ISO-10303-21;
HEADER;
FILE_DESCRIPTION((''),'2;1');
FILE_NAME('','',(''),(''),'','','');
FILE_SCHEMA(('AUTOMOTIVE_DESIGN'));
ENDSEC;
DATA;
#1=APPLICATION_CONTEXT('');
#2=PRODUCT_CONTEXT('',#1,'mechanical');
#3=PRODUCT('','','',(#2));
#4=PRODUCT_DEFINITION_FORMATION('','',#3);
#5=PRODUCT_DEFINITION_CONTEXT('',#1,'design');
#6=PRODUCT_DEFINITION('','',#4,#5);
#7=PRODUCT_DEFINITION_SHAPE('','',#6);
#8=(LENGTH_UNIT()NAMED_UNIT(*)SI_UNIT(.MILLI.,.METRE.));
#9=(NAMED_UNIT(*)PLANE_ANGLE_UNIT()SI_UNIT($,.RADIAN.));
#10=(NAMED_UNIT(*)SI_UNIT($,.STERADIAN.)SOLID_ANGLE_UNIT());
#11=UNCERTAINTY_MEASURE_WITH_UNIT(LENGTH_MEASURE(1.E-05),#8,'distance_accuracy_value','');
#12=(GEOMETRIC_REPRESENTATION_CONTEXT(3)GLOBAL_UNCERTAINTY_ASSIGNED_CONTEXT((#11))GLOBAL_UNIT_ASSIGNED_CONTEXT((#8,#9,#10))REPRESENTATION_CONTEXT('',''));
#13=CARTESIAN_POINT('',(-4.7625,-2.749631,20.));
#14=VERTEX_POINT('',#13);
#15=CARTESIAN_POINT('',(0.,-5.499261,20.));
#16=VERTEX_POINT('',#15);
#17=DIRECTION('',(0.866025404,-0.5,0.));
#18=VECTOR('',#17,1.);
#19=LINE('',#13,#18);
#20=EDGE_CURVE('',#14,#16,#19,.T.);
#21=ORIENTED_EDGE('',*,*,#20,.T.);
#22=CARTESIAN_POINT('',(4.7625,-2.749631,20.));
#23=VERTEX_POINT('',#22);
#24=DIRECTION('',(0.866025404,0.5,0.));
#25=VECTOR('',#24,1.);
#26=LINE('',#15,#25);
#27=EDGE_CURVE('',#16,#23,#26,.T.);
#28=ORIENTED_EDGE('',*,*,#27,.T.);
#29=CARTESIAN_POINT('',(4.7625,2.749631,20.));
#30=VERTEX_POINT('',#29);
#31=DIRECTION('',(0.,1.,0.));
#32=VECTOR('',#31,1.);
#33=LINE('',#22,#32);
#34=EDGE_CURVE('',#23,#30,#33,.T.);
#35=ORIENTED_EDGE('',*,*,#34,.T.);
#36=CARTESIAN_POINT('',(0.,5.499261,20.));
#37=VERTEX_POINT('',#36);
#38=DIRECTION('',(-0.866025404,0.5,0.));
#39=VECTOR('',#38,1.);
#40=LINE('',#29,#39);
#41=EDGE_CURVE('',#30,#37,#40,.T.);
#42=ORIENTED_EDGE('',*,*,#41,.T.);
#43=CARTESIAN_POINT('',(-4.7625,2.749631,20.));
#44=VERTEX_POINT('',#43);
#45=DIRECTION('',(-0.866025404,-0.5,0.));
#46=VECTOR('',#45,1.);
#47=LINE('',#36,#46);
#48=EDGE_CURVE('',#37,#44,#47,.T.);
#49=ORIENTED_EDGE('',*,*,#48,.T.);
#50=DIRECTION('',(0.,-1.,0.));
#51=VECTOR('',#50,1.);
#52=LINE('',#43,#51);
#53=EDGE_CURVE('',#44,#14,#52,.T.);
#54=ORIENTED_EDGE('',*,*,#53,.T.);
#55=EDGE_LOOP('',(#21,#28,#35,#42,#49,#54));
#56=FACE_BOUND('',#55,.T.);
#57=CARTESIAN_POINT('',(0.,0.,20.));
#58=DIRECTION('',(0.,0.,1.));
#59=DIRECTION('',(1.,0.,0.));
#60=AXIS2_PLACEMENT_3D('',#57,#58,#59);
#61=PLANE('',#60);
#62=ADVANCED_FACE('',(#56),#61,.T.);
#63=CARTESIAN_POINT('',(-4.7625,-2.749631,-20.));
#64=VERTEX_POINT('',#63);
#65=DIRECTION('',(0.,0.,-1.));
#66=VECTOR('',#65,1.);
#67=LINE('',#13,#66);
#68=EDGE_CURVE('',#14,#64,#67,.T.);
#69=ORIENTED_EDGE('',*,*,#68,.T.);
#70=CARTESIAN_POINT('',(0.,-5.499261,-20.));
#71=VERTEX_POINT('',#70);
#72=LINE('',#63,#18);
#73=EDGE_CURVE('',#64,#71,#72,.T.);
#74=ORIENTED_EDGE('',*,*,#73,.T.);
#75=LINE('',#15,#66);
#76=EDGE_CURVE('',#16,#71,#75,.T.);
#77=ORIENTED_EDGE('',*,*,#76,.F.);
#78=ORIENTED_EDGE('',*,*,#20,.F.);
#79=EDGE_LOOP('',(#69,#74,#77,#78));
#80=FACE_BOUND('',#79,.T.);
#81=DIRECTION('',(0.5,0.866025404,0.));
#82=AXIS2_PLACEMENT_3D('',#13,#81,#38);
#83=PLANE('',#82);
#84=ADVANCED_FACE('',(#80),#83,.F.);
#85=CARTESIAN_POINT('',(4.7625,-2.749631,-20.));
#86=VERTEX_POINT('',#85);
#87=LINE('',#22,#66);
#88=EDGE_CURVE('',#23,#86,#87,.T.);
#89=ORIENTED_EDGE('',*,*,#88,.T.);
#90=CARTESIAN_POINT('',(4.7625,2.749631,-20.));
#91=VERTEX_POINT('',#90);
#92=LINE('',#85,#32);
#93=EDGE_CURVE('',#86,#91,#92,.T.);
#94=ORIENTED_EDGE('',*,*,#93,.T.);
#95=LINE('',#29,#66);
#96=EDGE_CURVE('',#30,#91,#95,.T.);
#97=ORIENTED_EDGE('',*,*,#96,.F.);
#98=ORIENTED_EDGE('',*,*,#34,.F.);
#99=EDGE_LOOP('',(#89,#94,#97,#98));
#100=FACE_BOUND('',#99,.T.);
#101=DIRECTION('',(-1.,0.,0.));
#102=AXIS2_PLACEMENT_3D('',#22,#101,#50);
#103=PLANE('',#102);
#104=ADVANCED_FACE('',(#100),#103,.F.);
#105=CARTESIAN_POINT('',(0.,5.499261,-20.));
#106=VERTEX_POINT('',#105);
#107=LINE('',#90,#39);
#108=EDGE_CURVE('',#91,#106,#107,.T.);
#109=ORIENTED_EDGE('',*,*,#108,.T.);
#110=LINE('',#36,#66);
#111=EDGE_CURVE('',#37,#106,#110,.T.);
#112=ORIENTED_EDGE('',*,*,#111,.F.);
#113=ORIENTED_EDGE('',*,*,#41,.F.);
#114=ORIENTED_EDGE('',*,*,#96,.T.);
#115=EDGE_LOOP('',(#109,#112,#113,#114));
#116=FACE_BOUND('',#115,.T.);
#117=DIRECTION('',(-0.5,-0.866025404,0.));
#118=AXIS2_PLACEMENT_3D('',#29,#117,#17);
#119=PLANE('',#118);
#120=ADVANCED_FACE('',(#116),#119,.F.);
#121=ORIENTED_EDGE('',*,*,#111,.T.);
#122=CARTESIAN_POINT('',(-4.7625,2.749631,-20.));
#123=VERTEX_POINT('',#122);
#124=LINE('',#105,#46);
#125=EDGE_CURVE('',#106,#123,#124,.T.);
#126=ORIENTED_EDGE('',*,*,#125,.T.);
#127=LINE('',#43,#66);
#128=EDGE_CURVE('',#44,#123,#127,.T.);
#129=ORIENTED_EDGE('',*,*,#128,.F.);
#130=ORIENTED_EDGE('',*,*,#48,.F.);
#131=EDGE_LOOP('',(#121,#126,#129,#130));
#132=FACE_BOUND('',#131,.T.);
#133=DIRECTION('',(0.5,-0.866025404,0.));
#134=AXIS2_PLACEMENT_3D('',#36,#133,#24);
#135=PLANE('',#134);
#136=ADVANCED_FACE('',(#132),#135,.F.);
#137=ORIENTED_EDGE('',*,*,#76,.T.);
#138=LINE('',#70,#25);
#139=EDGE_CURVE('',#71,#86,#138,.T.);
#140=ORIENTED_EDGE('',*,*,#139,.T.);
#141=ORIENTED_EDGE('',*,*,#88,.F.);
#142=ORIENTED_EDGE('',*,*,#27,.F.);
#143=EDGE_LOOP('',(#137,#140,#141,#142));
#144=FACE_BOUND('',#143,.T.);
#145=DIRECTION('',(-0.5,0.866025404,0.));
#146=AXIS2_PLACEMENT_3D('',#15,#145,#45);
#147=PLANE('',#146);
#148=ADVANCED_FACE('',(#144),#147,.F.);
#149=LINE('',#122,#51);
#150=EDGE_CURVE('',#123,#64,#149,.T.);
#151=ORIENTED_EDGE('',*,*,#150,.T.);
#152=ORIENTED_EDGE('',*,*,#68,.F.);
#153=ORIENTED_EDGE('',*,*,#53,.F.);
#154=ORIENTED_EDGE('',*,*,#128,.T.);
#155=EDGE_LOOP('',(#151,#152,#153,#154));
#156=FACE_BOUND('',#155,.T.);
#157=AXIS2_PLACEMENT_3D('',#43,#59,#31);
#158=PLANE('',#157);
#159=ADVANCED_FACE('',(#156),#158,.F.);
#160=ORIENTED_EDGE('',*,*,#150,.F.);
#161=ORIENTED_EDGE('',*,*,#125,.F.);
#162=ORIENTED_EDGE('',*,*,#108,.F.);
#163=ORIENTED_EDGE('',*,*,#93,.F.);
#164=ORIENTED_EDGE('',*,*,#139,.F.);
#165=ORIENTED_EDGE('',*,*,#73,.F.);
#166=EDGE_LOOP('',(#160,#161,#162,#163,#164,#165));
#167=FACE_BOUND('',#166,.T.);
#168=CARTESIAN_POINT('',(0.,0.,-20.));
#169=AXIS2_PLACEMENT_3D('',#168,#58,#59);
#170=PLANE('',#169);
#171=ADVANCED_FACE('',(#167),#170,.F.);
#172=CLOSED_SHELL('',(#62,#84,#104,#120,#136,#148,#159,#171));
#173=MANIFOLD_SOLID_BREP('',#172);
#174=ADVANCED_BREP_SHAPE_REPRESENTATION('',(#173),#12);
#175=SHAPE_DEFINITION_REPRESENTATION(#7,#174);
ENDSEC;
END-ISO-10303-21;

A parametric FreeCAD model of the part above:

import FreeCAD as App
import Part
import Sketcher
Q = App.Units.Quantity

doc = App.newDocument("Part")
params = doc.addObject("Spreadsheet::Sheet", "Params")
for row, (alias, value) in enumerate([
    ("pad1_length", "40 mm"),
], start=1):
    params.set(f"A{row}", alias)
    params.set(f"B{row}", "=" + value)
    params.setAlias(f"B{row}", alias)

body = doc.addObject("PartDesign::Body", "Body")

sketch1 = doc.addObject("Sketcher::SketchObject", "Sketch")
body.addObject(sketch1)
sketch1.AttachmentSupport = (doc.XY_Plane, [""])
sketch1.MapMode = "FlatFace"
sketch1.addGeometry([
    Part.LineSegment(App.Vector(4.7625, 2.749631, 0), App.Vector(0, 5.499261, 0)),
    Part.LineSegment(App.Vector(0, 5.499261, 0), App.Vector(-4.7625, 2.749631, 0)),
    Part.LineSegment(App.Vector(-4.7625, 2.749631, 0), App.Vector(-4.7625, -2.749631, 0)),
    Part.LineSegment(App.Vector(-4.7625, -2.749631, 0), App.Vector(0, -5.499261, 0)),
    Part.LineSegment(App.Vector(0, -5.499261, 0), App.Vector(4.7625, -2.749631, 0)),
    Part.LineSegment(App.Vector(4.7625, -2.749631, 0), App.Vector(4.7625, 2.749631, 0)),
], False)
sketch1.addConstraint([
    Sketcher.Constraint("Coincident", 0, 2, 1, 1),
    Sketcher.Constraint("Coincident", 1, 2, 2, 1),
    Sketcher.Constraint("Coincident", 2, 2, 3, 1),
    Sketcher.Constraint("Coincident", 3, 2, 4, 1),
    Sketcher.Constraint("Coincident", 4, 2, 5, 1),
    Sketcher.Constraint("Coincident", 5, 2, 0, 1),
    Sketcher.Constraint("Vertical", 2),
    Sketcher.Constraint("Vertical", 5),
    Sketcher.Constraint("Symmetric", 0, 2, 3, 2, -1, 1),
    Sketcher.Constraint("Symmetric", 1, 2, 4, 2, -1, 1),
    Sketcher.Constraint("PointOnObject", 0, 2, -2),
    Sketcher.Constraint("Parallel", 0, 3),
    Sketcher.Constraint("Horizontal", 2, 2, 4, 2),
    Sketcher.Constraint("Angle", 0, Q("150 deg")),
    Sketcher.Constraint("DistanceX", 2, 2, 4, 2, 9.525),
    Sketcher.Constraint("DistanceY", 2, 2, 2, 1, 5.499261),
])
pad1 = doc.addObject("PartDesign::Pad", "Pad")
body.addObject(pad1)
pad1.Profile = sketch1
pad1.setExpression("Length", "Params.pad1_length")
pad1.Midplane = True

doc.recompute()
